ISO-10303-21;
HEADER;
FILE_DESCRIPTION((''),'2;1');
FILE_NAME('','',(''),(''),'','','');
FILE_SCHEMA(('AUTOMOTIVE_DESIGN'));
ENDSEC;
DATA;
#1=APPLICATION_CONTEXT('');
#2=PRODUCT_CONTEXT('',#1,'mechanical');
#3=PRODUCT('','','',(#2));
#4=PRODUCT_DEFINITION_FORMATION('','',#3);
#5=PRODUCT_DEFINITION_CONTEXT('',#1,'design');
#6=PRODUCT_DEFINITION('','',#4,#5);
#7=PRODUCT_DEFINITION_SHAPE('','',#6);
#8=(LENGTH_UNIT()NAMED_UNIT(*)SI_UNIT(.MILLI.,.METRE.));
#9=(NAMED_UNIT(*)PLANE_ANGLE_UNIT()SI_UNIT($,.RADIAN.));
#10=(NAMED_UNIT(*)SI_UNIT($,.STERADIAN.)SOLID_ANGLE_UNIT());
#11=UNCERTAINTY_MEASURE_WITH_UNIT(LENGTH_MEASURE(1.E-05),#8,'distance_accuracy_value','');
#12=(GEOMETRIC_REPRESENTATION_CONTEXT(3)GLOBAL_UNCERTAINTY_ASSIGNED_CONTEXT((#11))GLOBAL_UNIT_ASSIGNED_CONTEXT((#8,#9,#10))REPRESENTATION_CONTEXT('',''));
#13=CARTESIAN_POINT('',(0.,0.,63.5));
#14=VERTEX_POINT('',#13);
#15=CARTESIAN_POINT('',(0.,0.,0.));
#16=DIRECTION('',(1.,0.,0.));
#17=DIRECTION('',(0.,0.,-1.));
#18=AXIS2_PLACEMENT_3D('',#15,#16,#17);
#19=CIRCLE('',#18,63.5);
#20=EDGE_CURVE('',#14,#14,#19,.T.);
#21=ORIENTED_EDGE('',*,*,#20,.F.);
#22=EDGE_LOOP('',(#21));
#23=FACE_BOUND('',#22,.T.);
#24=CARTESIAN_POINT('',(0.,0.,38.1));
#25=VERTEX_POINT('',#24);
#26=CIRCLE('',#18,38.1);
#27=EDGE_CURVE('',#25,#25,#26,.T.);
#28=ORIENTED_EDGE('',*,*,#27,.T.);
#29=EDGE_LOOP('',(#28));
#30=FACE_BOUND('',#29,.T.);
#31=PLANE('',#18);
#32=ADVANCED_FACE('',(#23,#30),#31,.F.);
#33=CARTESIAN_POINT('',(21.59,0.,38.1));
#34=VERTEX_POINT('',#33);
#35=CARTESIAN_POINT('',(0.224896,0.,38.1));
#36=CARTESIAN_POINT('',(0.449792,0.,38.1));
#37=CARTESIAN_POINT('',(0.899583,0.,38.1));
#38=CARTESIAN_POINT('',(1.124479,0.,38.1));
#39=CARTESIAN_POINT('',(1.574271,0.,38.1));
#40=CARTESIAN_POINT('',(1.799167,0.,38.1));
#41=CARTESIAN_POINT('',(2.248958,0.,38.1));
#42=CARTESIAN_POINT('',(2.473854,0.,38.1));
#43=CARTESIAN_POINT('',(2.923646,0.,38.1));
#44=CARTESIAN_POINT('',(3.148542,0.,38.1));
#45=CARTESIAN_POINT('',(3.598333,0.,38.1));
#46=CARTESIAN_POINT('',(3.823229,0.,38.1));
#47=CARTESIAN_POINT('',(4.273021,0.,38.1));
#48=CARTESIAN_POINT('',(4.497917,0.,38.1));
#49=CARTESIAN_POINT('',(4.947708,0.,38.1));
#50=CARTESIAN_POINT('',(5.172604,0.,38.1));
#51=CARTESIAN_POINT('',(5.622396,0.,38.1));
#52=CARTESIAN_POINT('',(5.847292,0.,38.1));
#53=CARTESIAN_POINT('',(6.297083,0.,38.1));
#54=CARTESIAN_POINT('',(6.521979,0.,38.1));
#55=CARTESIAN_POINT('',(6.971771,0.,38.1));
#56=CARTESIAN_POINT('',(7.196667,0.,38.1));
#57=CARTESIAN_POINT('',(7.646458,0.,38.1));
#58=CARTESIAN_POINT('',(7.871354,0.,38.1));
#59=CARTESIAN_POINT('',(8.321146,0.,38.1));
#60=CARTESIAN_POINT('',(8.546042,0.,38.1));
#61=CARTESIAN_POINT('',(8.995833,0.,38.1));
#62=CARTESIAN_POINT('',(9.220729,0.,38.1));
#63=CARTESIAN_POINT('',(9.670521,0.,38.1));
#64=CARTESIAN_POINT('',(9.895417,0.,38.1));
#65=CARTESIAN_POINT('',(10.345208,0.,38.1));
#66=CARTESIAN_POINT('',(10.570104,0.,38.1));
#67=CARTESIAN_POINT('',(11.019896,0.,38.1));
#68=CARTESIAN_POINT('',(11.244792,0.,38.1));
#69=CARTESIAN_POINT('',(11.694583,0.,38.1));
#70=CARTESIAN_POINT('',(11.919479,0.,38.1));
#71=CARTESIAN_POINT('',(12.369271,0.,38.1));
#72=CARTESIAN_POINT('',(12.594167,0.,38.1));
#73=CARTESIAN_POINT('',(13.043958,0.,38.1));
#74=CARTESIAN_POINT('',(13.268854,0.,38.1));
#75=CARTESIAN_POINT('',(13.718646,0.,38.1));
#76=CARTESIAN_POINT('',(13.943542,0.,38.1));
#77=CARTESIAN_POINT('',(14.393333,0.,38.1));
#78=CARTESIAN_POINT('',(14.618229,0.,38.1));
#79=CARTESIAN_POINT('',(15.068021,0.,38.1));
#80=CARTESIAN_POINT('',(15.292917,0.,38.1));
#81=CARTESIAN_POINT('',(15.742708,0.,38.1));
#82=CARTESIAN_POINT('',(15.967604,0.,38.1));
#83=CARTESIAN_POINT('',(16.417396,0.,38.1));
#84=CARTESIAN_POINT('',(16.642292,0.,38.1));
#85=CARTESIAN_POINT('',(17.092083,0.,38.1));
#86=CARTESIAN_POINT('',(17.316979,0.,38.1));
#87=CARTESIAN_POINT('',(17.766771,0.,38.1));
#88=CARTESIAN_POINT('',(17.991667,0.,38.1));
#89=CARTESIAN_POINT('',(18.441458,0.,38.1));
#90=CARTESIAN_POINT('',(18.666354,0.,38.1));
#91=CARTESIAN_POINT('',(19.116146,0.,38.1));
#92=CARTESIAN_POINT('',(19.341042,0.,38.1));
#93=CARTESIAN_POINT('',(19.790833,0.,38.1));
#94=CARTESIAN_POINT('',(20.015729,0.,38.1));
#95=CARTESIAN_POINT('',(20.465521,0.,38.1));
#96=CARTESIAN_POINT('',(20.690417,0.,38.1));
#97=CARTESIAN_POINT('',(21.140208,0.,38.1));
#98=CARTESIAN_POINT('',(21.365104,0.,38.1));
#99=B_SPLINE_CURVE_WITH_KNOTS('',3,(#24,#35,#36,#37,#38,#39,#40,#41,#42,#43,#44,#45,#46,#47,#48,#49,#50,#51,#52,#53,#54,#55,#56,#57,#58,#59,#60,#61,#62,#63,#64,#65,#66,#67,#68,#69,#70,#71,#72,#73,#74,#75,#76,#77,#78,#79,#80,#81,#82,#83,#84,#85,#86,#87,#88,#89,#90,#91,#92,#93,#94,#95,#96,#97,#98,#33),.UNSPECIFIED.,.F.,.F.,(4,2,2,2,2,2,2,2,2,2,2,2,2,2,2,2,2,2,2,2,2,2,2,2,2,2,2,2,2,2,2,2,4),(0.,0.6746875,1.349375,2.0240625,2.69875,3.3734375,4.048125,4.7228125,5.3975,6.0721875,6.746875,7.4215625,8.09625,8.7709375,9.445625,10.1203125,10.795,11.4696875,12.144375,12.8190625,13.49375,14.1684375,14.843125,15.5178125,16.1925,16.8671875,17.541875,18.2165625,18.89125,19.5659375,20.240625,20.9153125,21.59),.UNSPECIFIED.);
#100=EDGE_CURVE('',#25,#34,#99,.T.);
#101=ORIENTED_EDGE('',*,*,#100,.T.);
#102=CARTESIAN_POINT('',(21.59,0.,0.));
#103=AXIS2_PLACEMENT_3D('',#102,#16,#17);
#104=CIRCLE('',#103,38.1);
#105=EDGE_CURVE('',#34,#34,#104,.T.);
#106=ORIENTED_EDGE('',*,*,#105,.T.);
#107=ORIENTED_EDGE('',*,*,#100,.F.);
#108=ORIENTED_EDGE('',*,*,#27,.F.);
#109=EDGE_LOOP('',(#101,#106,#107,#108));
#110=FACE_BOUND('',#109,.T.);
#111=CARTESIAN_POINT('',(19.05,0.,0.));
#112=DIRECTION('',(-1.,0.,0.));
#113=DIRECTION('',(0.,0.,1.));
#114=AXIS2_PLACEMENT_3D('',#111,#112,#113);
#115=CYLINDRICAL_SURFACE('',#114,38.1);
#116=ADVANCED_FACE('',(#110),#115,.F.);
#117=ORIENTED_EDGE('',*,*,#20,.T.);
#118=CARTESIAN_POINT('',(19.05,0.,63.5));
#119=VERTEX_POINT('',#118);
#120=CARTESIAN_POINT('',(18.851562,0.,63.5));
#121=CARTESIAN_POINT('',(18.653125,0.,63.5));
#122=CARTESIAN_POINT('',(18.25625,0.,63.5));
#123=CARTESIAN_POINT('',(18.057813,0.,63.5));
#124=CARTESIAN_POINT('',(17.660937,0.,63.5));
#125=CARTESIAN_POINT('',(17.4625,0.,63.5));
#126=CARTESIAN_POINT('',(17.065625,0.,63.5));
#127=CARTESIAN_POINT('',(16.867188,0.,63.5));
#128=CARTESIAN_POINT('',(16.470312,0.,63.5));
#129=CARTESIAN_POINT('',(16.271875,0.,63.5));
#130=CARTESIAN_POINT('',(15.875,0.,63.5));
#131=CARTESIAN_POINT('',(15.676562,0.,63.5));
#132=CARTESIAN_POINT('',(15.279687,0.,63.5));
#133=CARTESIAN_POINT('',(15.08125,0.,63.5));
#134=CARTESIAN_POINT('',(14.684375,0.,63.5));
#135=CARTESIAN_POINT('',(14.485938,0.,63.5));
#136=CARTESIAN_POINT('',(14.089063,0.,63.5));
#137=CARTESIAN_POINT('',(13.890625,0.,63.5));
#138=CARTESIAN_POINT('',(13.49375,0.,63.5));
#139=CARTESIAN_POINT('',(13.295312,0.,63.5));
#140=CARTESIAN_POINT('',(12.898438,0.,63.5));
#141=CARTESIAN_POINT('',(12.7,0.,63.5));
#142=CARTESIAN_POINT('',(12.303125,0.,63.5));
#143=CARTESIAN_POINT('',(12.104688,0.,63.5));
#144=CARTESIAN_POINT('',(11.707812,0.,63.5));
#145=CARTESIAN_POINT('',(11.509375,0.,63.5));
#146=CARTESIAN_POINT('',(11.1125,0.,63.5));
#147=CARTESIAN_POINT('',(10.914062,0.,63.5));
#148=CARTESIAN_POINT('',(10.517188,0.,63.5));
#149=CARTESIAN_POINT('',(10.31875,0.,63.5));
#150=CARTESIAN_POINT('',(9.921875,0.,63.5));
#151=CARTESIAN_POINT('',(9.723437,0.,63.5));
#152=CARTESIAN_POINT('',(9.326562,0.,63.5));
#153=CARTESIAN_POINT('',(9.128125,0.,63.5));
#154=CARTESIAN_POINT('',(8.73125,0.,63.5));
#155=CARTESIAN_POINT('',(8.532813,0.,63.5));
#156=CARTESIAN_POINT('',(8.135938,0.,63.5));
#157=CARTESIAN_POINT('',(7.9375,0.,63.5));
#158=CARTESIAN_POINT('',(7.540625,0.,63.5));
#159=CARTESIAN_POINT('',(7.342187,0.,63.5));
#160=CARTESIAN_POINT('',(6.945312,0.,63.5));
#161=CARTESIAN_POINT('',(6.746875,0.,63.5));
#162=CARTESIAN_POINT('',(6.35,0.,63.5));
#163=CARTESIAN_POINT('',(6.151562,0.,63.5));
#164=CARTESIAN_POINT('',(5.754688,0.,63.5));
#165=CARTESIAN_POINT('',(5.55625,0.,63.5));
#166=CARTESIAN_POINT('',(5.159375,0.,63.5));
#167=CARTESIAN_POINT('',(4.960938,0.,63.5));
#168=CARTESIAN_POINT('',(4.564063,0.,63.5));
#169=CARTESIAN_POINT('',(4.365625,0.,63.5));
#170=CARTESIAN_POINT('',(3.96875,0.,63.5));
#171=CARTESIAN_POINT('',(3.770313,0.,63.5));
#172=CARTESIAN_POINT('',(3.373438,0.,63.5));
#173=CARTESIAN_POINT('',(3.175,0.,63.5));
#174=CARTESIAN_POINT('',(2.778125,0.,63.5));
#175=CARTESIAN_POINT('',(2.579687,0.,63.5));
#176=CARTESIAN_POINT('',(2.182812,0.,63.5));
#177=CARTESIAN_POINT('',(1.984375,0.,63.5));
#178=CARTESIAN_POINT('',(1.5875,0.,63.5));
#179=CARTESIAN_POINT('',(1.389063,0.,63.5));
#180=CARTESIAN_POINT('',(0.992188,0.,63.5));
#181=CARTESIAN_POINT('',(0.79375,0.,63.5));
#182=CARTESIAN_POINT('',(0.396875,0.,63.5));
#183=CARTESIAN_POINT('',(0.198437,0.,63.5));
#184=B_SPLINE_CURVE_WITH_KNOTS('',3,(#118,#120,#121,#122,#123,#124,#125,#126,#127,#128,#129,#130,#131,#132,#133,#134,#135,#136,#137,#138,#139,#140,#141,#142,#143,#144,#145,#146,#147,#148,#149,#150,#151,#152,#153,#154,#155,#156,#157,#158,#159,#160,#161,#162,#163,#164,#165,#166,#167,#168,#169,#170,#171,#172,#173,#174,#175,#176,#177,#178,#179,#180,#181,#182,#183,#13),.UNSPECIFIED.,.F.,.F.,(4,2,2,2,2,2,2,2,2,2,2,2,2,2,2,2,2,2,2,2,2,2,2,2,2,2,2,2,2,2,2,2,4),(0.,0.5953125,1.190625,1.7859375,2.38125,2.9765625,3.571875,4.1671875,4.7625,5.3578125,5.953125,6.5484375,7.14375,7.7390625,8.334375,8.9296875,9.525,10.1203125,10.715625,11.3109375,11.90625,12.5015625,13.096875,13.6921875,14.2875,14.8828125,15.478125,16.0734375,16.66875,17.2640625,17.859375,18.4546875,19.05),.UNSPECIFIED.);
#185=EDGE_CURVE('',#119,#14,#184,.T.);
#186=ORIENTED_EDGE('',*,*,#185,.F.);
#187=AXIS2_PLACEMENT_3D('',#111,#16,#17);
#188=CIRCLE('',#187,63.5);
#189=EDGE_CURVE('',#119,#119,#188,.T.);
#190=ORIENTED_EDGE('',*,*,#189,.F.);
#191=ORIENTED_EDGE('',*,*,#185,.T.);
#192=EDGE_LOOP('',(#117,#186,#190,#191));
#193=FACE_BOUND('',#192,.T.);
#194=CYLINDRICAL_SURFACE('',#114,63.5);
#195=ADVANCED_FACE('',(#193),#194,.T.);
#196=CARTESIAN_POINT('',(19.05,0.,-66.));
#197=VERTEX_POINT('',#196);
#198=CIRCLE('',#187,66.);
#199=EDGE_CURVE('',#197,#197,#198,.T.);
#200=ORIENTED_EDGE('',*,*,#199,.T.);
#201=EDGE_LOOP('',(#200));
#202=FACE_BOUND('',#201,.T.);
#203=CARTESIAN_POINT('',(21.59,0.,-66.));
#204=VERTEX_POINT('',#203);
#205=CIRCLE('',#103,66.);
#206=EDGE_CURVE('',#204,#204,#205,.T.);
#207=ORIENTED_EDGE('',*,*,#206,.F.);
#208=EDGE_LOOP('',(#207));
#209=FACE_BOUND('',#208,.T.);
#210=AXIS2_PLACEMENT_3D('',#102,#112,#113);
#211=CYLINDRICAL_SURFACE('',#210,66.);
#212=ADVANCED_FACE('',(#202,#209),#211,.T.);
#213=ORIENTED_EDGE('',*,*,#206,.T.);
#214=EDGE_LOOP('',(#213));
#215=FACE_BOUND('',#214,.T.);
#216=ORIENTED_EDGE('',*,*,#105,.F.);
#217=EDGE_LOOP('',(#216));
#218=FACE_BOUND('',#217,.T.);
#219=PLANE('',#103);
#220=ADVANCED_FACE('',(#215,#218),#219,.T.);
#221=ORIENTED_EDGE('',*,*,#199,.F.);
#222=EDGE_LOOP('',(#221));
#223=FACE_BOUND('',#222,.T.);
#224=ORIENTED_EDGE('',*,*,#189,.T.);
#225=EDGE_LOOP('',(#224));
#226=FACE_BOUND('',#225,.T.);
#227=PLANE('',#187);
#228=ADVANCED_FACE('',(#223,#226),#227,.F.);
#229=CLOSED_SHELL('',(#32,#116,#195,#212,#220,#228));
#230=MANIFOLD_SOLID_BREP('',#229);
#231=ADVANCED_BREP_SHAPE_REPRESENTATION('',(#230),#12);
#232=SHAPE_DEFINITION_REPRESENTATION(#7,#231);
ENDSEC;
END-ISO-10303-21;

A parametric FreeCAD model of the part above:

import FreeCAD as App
import Part
import Sketcher
from FreeCAD import Vector
Q = App.Units.Quantity

doc = App.newDocument("Part")
body = doc.addObject("PartDesign::Body", "Body")

# Sketch on YZ plane
sketch1 = body.newObject("Sketcher::SketchObject", "Sketch")
sketch1.AttachmentSupport = (doc.getObject("YZ_Plane"), [""])
sketch1.MapMode = "FlatFace"
sketch1.addGeometry(Part.Circle(Vector(0, 0, 0), Vector(0, 0, 1), 63.5), False)
sketch1.addGeometry(Part.Circle(Vector(0, 0, 0), Vector(0, 0, 1), 38.1), False)
sketch1.addConstraint(Sketcher.Constraint("Coincident", 0, 3, -1, 1))
sketch1.addConstraint(Sketcher.Constraint("Coincident", 1, 3, -1, 1))
sketch1.addConstraint(Sketcher.Constraint("Diameter", 0, Q("5 in")))
sketch1.addConstraint(Sketcher.Constraint("Diameter", 1, Q("3 in")))
pad1 = body.newObject("PartDesign::Pad", "Pad")
pad1.Profile = sketch1
pad1.Length = Q("0.75 in")

# Sketch on YZ plane
sketch2 = body.newObject("Sketcher::SketchObject", "Sketch001")
sketch2.AttachmentSupport = (doc.getObject("YZ_Plane"), [""])
sketch2.MapMode = "FlatFace"
sketch2.AttachmentOffset = App.Placement(Vector(0, 0, 0.75 * 25.4), App.Rotation())
sketch2.addGeometry(Part.Circle(Vector(0, 0, 0), Vector(0, 0, 1), 66), False)
sketch2.addGeometry(Part.Circle(Vector(0, 0, 0), Vector(0, 0, 1), 38.1), False)
sketch2.addConstraint(Sketcher.Constraint("Coincident", 0, 3, -1, 1))
sketch2.addConstraint(Sketcher.Constraint("Coincident", 1, 3, -1, 1))
sketch2.addConstraint(Sketcher.Constraint("Diameter", 1, Q("3 in")))
sketch2.addConstraint(Sketcher.Constraint("Diameter", 0, Q("132 mm")))
pad2 = body.newObject("PartDesign::Pad", "Pad001")
pad2.Profile = sketch2
pad2.Length = Q("0.1 in")

doc.recompute()
